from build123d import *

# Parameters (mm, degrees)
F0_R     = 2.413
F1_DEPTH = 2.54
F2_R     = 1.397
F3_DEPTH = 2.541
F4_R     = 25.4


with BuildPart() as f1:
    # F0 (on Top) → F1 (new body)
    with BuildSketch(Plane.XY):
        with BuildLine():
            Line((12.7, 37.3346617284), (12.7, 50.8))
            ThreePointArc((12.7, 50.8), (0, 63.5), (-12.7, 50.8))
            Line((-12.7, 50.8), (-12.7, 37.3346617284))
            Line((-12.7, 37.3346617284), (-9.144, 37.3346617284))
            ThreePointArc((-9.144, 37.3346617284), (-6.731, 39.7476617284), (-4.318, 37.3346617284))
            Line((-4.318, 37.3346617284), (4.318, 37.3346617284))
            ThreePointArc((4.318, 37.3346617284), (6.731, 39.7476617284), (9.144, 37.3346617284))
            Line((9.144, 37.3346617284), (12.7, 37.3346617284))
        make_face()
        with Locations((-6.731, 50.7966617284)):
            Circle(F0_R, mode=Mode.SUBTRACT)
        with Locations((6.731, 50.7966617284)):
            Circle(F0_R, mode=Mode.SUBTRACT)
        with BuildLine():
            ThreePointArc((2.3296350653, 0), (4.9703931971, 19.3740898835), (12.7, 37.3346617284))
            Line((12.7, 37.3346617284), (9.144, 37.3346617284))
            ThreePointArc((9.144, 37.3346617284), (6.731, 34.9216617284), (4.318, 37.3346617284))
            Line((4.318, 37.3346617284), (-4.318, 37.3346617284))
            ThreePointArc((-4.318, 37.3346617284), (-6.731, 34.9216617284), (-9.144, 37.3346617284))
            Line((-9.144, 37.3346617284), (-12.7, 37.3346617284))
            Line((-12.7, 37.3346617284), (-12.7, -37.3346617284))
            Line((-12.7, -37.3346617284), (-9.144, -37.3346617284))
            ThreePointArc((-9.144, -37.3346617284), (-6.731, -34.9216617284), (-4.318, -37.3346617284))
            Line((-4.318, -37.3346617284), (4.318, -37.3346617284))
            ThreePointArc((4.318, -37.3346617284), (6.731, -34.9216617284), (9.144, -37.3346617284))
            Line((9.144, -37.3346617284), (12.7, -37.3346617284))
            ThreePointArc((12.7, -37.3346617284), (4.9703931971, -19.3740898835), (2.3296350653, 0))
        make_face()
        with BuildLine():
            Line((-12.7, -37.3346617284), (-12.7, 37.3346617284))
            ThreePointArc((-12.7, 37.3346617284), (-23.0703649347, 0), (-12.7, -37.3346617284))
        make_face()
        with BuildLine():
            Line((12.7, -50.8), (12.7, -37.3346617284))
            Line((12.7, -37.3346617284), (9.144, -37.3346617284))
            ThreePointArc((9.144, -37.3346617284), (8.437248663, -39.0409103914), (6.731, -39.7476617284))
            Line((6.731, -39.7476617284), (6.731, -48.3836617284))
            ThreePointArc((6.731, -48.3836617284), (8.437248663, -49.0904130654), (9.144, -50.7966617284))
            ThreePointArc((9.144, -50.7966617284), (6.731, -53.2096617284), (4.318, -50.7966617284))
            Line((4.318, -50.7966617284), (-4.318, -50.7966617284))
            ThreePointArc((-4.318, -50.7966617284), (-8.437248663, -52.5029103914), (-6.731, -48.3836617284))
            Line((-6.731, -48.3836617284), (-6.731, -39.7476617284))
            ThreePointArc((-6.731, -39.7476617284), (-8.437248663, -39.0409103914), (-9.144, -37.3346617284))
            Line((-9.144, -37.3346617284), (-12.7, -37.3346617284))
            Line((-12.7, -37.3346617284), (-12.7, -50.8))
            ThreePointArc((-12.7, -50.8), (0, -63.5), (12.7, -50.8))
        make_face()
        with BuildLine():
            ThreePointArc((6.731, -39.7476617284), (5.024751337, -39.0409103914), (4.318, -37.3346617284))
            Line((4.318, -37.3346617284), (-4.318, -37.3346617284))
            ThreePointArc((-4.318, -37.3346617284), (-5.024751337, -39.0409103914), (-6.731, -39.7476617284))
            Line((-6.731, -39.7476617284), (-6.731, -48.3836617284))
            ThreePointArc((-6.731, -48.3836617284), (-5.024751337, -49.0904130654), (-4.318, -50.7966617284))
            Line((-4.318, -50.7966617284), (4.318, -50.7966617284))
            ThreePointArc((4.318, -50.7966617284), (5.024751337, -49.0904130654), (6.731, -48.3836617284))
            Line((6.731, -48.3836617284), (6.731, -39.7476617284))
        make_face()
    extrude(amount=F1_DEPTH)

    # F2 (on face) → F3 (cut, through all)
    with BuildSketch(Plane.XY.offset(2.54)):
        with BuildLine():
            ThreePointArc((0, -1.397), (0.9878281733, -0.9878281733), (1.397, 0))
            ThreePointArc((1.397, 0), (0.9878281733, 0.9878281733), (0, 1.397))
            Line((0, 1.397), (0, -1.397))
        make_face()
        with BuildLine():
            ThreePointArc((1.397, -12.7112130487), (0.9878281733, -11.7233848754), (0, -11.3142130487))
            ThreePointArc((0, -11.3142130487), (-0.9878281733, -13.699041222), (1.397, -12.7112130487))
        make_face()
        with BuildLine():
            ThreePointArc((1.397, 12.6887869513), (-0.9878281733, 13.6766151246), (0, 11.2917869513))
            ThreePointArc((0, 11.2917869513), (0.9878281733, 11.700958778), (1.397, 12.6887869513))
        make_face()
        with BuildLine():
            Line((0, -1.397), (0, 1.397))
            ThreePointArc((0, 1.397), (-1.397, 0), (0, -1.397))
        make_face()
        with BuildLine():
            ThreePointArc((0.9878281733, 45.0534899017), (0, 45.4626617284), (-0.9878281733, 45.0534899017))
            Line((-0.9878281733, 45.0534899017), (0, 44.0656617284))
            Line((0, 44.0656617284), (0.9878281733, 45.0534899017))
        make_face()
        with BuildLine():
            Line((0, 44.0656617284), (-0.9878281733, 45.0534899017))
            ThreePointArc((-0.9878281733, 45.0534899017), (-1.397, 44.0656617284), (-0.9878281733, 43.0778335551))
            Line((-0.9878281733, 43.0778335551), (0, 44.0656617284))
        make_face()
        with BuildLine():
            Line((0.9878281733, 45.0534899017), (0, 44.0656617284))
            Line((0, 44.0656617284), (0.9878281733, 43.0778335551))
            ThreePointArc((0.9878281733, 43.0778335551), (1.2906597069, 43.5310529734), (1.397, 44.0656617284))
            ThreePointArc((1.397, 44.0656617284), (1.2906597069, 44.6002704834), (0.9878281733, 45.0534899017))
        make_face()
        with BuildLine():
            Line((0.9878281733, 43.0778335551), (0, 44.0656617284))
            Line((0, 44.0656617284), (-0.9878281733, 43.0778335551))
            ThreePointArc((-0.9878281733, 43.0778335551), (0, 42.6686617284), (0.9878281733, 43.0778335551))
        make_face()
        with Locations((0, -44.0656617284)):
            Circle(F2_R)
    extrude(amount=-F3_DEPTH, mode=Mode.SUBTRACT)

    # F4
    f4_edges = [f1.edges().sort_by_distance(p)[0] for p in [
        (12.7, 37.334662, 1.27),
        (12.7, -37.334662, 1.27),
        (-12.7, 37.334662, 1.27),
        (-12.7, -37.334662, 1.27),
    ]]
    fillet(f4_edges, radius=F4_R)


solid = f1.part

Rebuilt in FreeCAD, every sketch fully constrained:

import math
import FreeCAD as App
import Part
import Sketcher
from FreeCAD import Vector
Q = App.Units.Quantity


def edges_at(feature, points):
    """Names of the edges that pass closest to the given points."""
    edges = feature.Shape.Edges
    near = lambda p: min(range(len(edges)), key=lambda i: edges[i].distToShape(Part.Vertex(*p))[0])
    return sorted({f"Edge{near(p) + 1}" for p in points})

doc = App.newDocument("Part")
params = doc.addObject("Spreadsheet::Sheet", "Params")
for row, (alias, value) in enumerate([
    ("sketch1_radius", "0.5 in"),
    ("sketch1_diameter", "0.19 in"),
    ("sketch1_radius2", "2.85 in"),
    ("pad1_length", "0.1 in"),
    ("sketch2_diameter", "0.11 in"),
    ("fillet_radius", "1 in"),
], start=1):
    params.set(f"A{row}", alias)
    params.set(f"B{row}", "=" + value)
    params.setAlias(f"B{row}", alias)

body = doc.addObject("PartDesign::Body", "Body")

# Sketch on XY plane
sketch1 = doc.addObject("Sketcher::SketchObject", "Sketch")
body.addObject(sketch1)
sketch1.AttachmentSupport = (doc.XY_Plane, [""])
sketch1.MapMode = "FlatFace"
sketch1.addGeometry([
    Part.LineSegment(Vector(12.7, 37.3, 0), Vector(12.7, 50.8, 0)),  # 0
    Part.ArcOfCircle(Part.Circle(Vector(0, 50.8, 0), Vector(0, 0, 1), 12.7), math.radians(0), math.radians(180)),  # 1
    Part.LineSegment(Vector(-12.7, 50.8, 0), Vector(-12.7, 37.3, 0)),  # 2
    Part.ArcOfCircle(Part.Circle(Vector(49.3, 0, 0), Vector(0, 0, 1), 72.4), math.radians(149), math.radians(211)),  # 3
    Part.LineSegment(Vector(-12.7, -37.3, 0), Vector(-12.7, -50.8, 0)),  # 4
    Part.ArcOfCircle(Part.Circle(Vector(0, -50.8, 0), Vector(0, 0, 1), 12.7), math.radians(180), math.radians(360)),  # 5
    Part.LineSegment(Vector(12.7, -50.8, 0), Vector(12.7, -37.3, 0)),  # 6
    Part.ArcOfCircle(Part.Circle(Vector(74.7, 0, 0), Vector(0, 0, 1), 72.4), math.radians(180), math.radians(211)),  # 7
    Part.ArcOfCircle(Part.Circle(Vector(74.7, 0, 0), Vector(0, 0, 1), 72.4), math.radians(149), math.radians(180)),  # 8
    Part.ArcOfCircle(Part.Circle(Vector(-6.7, -37.3, 0), Vector(0, 0, 1), 2.4), math.radians(0), math.radians(180)),  # 9
    Part.ArcOfCircle(Part.Circle(Vector(-6.7, -37.3, 0), Vector(0, 0, 1), 2.4), math.radians(-90), math.radians(0)),  # 10
    Part.ArcOfCircle(Part.Circle(Vector(-6.7, -37.3, 0), Vector(0, 0, 1), 2.4), math.radians(180), math.radians(270)),  # 11
    Part.ArcOfCircle(Part.Circle(Vector(6.7, -37.3, 0), Vector(0, 0, 1), 2.4), math.radians(0), math.radians(180)),  # 12
    Part.ArcOfCircle(Part.Circle(Vector(6.7, -37.3, 0), Vector(0, 0, 1), 2.4), math.radians(-90), math.radians(0)),  # 13
    Part.ArcOfCircle(Part.Circle(Vector(6.7, -37.3, 0), Vector(0, 0, 1), 2.4), math.radians(180), math.radians(270)),  # 14
    Part.ArcOfCircle(Part.Circle(Vector(6.7, -50.8, 0), Vector(0, 0, 1), 2.4), math.radians(0), math.radians(90)),  # 15
    Part.ArcOfCircle(Part.Circle(Vector(6.7, -50.8, 0), Vector(0, 0, 1), 2.4), math.radians(180), math.radians(360)),  # 16
    Part.ArcOfCircle(Part.Circle(Vector(6.7, -50.8, 0), Vector(0, 0, 1), 2.4), math.radians(90), math.radians(180)),  # 17
    Part.ArcOfCircle(Part.Circle(Vector(-6.7, -50.8, 0), Vector(0, 0, 1), 2.4), math.radians(90), math.radians(360)),  # 18
    Part.ArcOfCircle(Part.Circle(Vector(-6.7, -50.8, 0), Vector(0, 0, 1), 2.4), math.radians(0), math.radians(90)),  # 19
    Part.Circle(Vector(6.7, 37.3, 0), Vector(0, 0, 1), 2.4),  # 20
    Part.Circle(Vector(-6.7, 37.3, 0), Vector(0, 0, 1), 2.4),  # 21
    Part.Circle(Vector(-6.7, 50.8, 0), Vector(0, 0, 1), 2.4),  # 22
    Part.Circle(Vector(6.7, 50.8, 0), Vector(0, 0, 1), 2.4),  # 23
], False)
sketch1.addConstraint([
    Sketcher.Constraint("Tangent", 0, 2, 1, 1),
    Sketcher.Constraint("Tangent", 1, 2, 2, 1),
    Sketcher.Constraint("Coincident", 2, 2, 3, 1),
    Sketcher.Constraint("Coincident", 3, 2, 4, 1),
    Sketcher.Constraint("Tangent", 4, 2, 5, 1),
    Sketcher.Constraint("Tangent", 5, 2, 6, 1),
    Sketcher.Constraint("Coincident", 6, 2, 7, 2),
    Sketcher.Constraint("Tangent", 7, 1, 8, 2),
    Sketcher.Constraint("Coincident", 8, 1, 0, 1),
    Sketcher.Constraint("Tangent", 9, 1, 10, 2),
    Sketcher.Constraint("Tangent", 10, 1, 11, 2),
    Sketcher.Constraint("Tangent", 11, 1, 9, 2),
    Sketcher.Constraint("Tangent", 12, 1, 13, 2),
    Sketcher.Constraint("Tangent", 13, 1, 14, 2),
    Sketcher.Constraint("Tangent", 14, 1, 12, 2),
    Sketcher.Constraint("Tangent", 15, 1, 16, 2),
    Sketcher.Constraint("Tangent", 16, 1, 17, 2),
    Sketcher.Constraint("Tangent", 17, 1, 15, 2),
    Sketcher.Constraint("Tangent", 18, 1, 19, 2),
    Sketcher.Constraint("Coincident", 19, 1, 18, 2),
    Sketcher.Constraint("Vertical", 0),
    Sketcher.Constraint("Vertical", 2),
    Sketcher.Constraint("Vertical", 4),
    Sketcher.Constraint("Vertical", 6),
    Sketcher.Constraint("Equal", 1, 5),
    Sketcher.Constraint("Equal", 3, 7),
    Sketcher.Constraint("Equal", 7, 8),
    Sketcher.Constraint("Equal", 11, 12),
    Sketcher.Constraint("Equal", 14, 15),
    Sketcher.Constraint("Equal", 17, 18),
    Sketcher.Constraint("Equal", 19, 20),
    Sketcher.Constraint("Equal", 20, 21),
    Sketcher.Constraint("Equal", 21, 22),
    Sketcher.Constraint("Equal", 22, 23),
    Sketcher.Constraint("Symmetric", 1, 3, 5, 3, -1, 1),
    Sketcher.Constraint("Symmetric", 9, 3, 20, 3, -1, 1),
    Sketcher.Constraint("Symmetric", 12, 3, 21, 3, -1, 1),
    Sketcher.Constraint("Symmetric", 15, 3, 22, 3, -1, 1),
    Sketcher.Constraint("Symmetric", 18, 3, 23, 3, -1, 1),
    Sketcher.Constraint("Symmetric", 9, 3, 12, 3, -2),
    Sketcher.Constraint("Symmetric", 15, 3, 18, 3, -2),
    Sketcher.Constraint("Symmetric", 3, 2, 6, 2, -2),
    Sketcher.Constraint("PointOnObject", 3, 3, -1),
    Sketcher.Constraint("PointOnObject", 7, 3, -1),
    Sketcher.Constraint("PointOnObject", 7, 1, -1),
    Sketcher.Constraint("Horizontal", 21, 3, 2, 2),
    Sketcher.Constraint("Horizontal", 6, 2, 9, 1),
    Sketcher.Constraint("Horizontal", 9, 1, 11, 1),
    Sketcher.Constraint("Horizontal", 11, 1, 12, 1),
    Sketcher.Constraint("Horizontal", 12, 1, 14, 1),
    Sketcher.Constraint("Horizontal", 19, 3, 15, 1),
    Sketcher.Constraint("Horizontal", 15, 1, 16, 1),
    Sketcher.Constraint("Horizontal", 16, 1, 19, 1),
    Sketcher.Constraint("Vertical", 14, 3, 15, 3),
    Sketcher.Constraint("Vertical", 22, 3, 10, 1),
    Sketcher.Constraint("Vertical", 23, 3, 13, 1),
    Sketcher.Constraint("Vertical", 13, 1, 17, 1),
    Sketcher.Constraint("Vertical", 10, 1, 18, 1),
    Sketcher.Constraint("Radius", 1, Q("0.5 in")),
    Sketcher.Constraint("Diameter", 20, Q("0.19 in")),
    Sketcher.Constraint("Radius", 3, Q("2.85 in")),
    Sketcher.Constraint("DistanceY", -1, 1, 1, 3, Q("2 in")),
    Sketcher.Constraint("DistanceX", 9, 1, -1, 1, Q("0.17 in")),
    Sketcher.Constraint("DistanceY", 15, 3, 12, 3, Q("0.53 in")),
    Sketcher.Constraint("DistanceY", 0, 1, 0, 2, 13.465338),
])
sketch1.setExpression("Constraints[58]", "Params.sketch1_radius")
sketch1.setExpression("Constraints[59]", "Params.sketch1_diameter")
sketch1.setExpression("Constraints[60]", "Params.sketch1_radius2")
pad1 = doc.addObject("PartDesign::Pad", "Pad")
body.addObject(pad1)
pad1.Profile = sketch1
pad1.setExpression("Length", "Params.pad1_length")

# Sketch on XY plane
sketch2 = doc.addObject("Sketcher::SketchObject", "Sketch001")
body.addObject(sketch2)
sketch2.AttachmentSupport = (doc.XY_Plane, [""])
sketch2.MapMode = "FlatFace"
sketch2.AttachmentOffset = App.Placement(Vector(0, 0, 0.1 * 25.4), App.Rotation())
sketch2.addGeometry([
    Part.ArcOfCircle(Part.Circle(Vector(0, 0, 0), Vector(0, 0, 1), 1.4), math.radians(-90), math.radians(0)),  # 0
    Part.ArcOfCircle(Part.Circle(Vector(0, 0, 0), Vector(0, 0, 1), 1.4), math.radians(0), math.radians(90)),  # 1
    Part.ArcOfCircle(Part.Circle(Vector(0, 0, 0), Vector(0, 0, 1), 1.4), math.radians(90), math.radians(270)),  # 2
    Part.ArcOfCircle(Part.Circle(Vector(0, -12.7, 0), Vector(0, 0, 1), 1.4), math.radians(0), math.radians(90)),  # 3
    Part.ArcOfCircle(Part.Circle(Vector(0, -12.7, 0), Vector(0, 0, 1), 1.4), math.radians(90), math.radians(360)),  # 4
    Part.ArcOfCircle(Part.Circle(Vector(0, 12.7, 0), Vector(0, 0, 1), 1.4), math.radians(0), math.radians(270)),  # 5
    Part.ArcOfCircle(Part.Circle(Vector(0, 12.7, 0), Vector(0, 0, 1), 1.4), math.radians(-90), math.radians(0)),  # 6
    Part.ArcOfCircle(Part.Circle(Vector(0, 44.1, 0), Vector(0, 0, 1), 1.4), math.radians(45), math.radians(135)),  # 7
    Part.ArcOfCircle(Part.Circle(Vector(0, 44.1, 0), Vector(0, 0, 1), 1.4), math.radians(135), math.radians(225)),  # 8
    Part.ArcOfCircle(Part.Circle(Vector(0, 44.1, 0), Vector(0, 0, 1), 1.4), math.radians(-135), math.radians(-45)),  # 9
    Part.ArcOfCircle(Part.Circle(Vector(0, 44.1, 0), Vector(0, 0, 1), 1.4), math.radians(-45), math.radians(0)),  # 10
    Part.ArcOfCircle(Part.Circle(Vector(0, 44.1, 0), Vector(0, 0, 1), 1.4), math.radians(0), math.radians(45)),  # 11
    Part.Circle(Vector(0, -44.1, 0), Vector(0, 0, 1), 1.4),  # 12
], False)
sketch2.addConstraint([
    Sketcher.Constraint("Tangent", 0, 2, 1, 1),
    Sketcher.Constraint("Tangent", 1, 2, 2, 1),
    Sketcher.Constraint("Tangent", 2, 2, 0, 1),
    Sketcher.Constraint("Tangent", 3, 1, 4, 2),
    Sketcher.Constraint("Coincident", 4, 1, 3, 2),
    Sketcher.Constraint("Tangent", 5, 1, 6, 2),
    Sketcher.Constraint("Coincident", 6, 1, 5, 2),
    Sketcher.Constraint("Tangent", 7, 2, 8, 1),
    Sketcher.Constraint("Tangent", 8, 2, 9, 1),
    Sketcher.Constraint("Tangent", 9, 2, 10, 1),
    Sketcher.Constraint("Tangent", 10, 2, 11, 1),
    Sketcher.Constraint("Tangent", 11, 2, 7, 1),
    Sketcher.Constraint("Coincident", 0, 3, -1, 1),
    Sketcher.Constraint("Coincident", 9, 3, 7, 3),
    Sketcher.Constraint("Equal", 2, 3),
    Sketcher.Constraint("Equal", 4, 5),
    Sketcher.Constraint("Equal", 6, 7),
    Sketcher.Constraint("Equal", 11, 12),
    Sketcher.Constraint("Symmetric", 7, 3, 12, 3, -1, 1),
    Sketcher.Constraint("Symmetric", 8, 2, 9, 2, -2),
    Sketcher.Constraint("PointOnObject", 3, 3, -2),
    Sketcher.Constraint("PointOnObject", 5, 3, -2),
    Sketcher.Constraint("PointOnObject", 0, 2, -1),
    Sketcher.Constraint("PointOnObject", 1, 2, -2),
    Sketcher.Constraint("PointOnObject", 2, 2, -2),
    Sketcher.Constraint("PointOnObject", 4, 1, -2),
    Sketcher.Constraint("PointOnObject", 6, 1, -2),
    Sketcher.Constraint("Horizontal", 4, 3, 3, 1),
    Sketcher.Constraint("Horizontal", 6, 3, 5, 1),
    Sketcher.Constraint("Horizontal", 11, 3, 10, 2),
    Sketcher.Constraint("Horizontal", 7, 2, 11, 2),
    Sketcher.Constraint("Vertical", 7, 2, 8, 2),
    Sketcher.Constraint("Diameter", 12, Q("0.11 in")),
    Sketcher.Constraint("DistanceY", 3, 3, 5, 3, Q("1 in")),
    Sketcher.Constraint("DistanceY", -1, 1, 7, 3, 44.065662),
    Sketcher.Constraint("DistanceX", 7, 2, -1, 1, 0.987828),
    Sketcher.Constraint("DistanceY", 12, 3, 3, 3, 31.354449),
])
sketch2.setExpression("Constraints[32]", "Params.sketch2_diameter")
pocket1 = doc.addObject("PartDesign::Pocket", "Pocket")
body.addObject(pocket1)
pocket1.Profile = sketch2
pocket1.Type = "ThroughAll"
doc.recompute()

fillet = doc.addObject("PartDesign::Fillet", "Fillet")
body.addObject(fillet)
fillet.Base = (pocket1, edges_at(pocket1, [
    (12.7, 37.335, 1.27),
    (12.7, -37.335, 1.27),
    (-12.7, 37.335, 1.27),
    (-12.7, -37.335, 1.27),
]))
fillet.setExpression("Radius", "Params.fillet_radius")

doc.recompute()
